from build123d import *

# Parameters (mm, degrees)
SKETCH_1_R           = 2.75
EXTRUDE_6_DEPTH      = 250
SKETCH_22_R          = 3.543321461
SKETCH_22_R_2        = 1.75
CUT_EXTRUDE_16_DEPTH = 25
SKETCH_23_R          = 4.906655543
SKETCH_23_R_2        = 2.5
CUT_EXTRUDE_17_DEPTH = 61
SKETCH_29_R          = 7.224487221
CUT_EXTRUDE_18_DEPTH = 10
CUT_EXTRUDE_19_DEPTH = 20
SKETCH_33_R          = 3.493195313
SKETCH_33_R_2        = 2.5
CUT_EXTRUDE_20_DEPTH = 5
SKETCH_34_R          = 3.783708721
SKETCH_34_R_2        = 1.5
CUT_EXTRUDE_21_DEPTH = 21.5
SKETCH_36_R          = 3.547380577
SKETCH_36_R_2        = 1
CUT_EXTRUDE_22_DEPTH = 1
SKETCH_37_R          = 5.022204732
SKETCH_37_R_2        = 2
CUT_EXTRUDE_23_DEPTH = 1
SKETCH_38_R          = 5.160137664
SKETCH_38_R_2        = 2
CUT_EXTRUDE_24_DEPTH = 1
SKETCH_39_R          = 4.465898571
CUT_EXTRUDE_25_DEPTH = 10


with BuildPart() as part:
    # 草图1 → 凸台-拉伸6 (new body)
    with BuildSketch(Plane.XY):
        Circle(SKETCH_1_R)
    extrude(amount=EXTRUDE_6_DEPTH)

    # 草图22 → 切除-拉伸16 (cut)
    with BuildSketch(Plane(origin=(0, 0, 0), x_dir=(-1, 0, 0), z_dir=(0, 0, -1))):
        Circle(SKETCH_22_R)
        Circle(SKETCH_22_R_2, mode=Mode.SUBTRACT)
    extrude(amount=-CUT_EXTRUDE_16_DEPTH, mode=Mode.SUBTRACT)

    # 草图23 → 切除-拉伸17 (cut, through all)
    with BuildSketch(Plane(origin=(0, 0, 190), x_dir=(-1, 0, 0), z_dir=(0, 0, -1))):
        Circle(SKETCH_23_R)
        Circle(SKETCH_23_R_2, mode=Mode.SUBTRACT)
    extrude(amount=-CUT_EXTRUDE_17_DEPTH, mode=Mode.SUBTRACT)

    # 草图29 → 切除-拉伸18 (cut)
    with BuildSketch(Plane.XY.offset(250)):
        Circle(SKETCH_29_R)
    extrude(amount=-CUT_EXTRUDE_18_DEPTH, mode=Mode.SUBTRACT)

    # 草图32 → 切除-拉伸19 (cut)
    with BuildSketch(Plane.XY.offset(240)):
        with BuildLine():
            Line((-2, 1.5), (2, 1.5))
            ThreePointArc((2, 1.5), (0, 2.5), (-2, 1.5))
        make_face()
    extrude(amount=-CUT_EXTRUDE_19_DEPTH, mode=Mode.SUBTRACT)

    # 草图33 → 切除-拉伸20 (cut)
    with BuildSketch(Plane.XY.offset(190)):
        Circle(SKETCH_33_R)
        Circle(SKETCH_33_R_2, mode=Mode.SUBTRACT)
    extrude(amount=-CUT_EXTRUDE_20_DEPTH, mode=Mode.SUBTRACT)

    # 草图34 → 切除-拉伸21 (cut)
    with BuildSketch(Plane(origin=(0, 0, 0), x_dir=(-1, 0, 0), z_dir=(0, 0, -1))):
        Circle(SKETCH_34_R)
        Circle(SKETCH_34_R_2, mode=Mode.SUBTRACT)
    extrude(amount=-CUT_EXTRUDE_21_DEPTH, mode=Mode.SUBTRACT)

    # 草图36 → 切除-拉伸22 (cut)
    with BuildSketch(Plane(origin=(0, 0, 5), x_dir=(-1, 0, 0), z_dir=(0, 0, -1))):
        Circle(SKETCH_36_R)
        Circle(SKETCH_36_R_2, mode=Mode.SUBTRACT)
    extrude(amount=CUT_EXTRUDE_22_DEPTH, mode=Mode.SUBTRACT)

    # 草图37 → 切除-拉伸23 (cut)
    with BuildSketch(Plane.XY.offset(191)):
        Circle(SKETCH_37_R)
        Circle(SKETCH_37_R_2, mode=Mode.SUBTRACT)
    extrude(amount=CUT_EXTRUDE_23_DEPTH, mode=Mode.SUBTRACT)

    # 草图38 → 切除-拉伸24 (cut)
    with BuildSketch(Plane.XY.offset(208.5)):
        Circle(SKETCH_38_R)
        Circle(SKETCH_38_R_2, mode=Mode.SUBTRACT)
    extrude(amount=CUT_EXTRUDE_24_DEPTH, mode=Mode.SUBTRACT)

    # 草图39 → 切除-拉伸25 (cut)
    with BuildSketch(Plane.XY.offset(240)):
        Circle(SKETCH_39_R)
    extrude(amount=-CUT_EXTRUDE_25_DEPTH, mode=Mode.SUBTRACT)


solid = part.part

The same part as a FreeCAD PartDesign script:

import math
import FreeCAD as App
import Part
import Sketcher

V = App.Vector

doc = App.newDocument("Part")
params = doc.addObject("Spreadsheet::Sheet", "Params")
for row, (alias, value) in enumerate([
    ("sketch1_diameter", "5.5 mm"),
    ("pad1_length", "250 mm"),
    ("sketch2_diameter", "3.5 mm"),
    ("pocket1_length", "25 mm"),
    ("sketch3_diameter", "5 mm"),
    ("pocket3_length", "10 mm"),
    ("sketch5_radius", "2.5 mm"),
    ("sketch5_width", "4 mm"),
    ("pocket4_length", "20 mm"),
    ("sketch6_diameter", "5 mm"),
    ("pocket5_length", "5 mm"),
    ("sketch7_diameter", "3 mm"),
    ("pocket6_length", "21.5 mm"),
    ("sketch8_diameter", "2 mm"),
    ("pocket7_length", "1 mm"),
    ("sketch9_diameter", "4 mm"),
    ("pocket8_length", "1 mm"),
    ("sketch10_diameter", "4 mm"),
    ("pocket9_length", "1 mm"),
    ("pocket10_length", "10 mm"),
], start=1):
    params.set(f"A{row}", alias)
    params.set(f"B{row}", "=" + value)
    params.setAlias(f"B{row}", alias)

body = doc.addObject("PartDesign::Body", "Body")

# Sketch on XY plane
sketch1 = body.newObject("Sketcher::SketchObject", "Sketch")
sketch1.AttachmentSupport = (doc.getObject("XY_Plane"), [""])
sketch1.MapMode = "FlatFace"
sketch1.addGeometry(Part.Circle(V(0, 0, 0), V(0, 0, 1), 2.8), False)
sketch1.addConstraint(Sketcher.Constraint("Coincident", 0, 3, -1, 1))
sketch1.addConstraint(Sketcher.Constraint("Diameter", 0, 5.5))
sketch1.setExpression("Constraints[1]", "Params.sketch1_diameter")
pad1 = body.newObject("PartDesign::Pad", "Pad")
pad1.Profile = sketch1
pad1.setExpression("Length", "Params.pad1_length")

# Sketch on XY plane
sketch2 = body.newObject("Sketcher::SketchObject", "Sketch001")
sketch2.AttachmentSupport = (doc.getObject("XY_Plane"), [""])
sketch2.MapMode = "FlatFace"
sketch2.addGeometry(Part.Circle(V(0, 0, 0), V(0, 0, 1), 3.5), False)
sketch2.addGeometry(Part.Circle(V(0, 0, 0), V(0, 0, 1), 1.8), False)
sketch2.addConstraint(Sketcher.Constraint("Coincident", 0, 3, -1, 1))
sketch2.addConstraint(Sketcher.Constraint("Coincident", 1, 3, -1, 1))
sketch2.addConstraint(Sketcher.Constraint("Diameter", 1, 3.5))
sketch2.addConstraint(Sketcher.Constraint("Diameter", 0, 7.086643))
sketch2.setExpression("Constraints[2]", "Params.sketch2_diameter")
pocket1 = body.newObject("PartDesign::Pocket", "Pocket")
pocket1.Profile = sketch2
pocket1.setExpression("Length", "Params.pocket1_length")
pocket1.Reversed = True

# Sketch on XY plane
sketch3 = body.newObject("Sketcher::SketchObject", "Sketch002")
sketch3.AttachmentSupport = (doc.getObject("XY_Plane"), [""])
sketch3.MapMode = "FlatFace"
sketch3.AttachmentOffset = App.Placement(V(0, 0, 190), App.Rotation())
sketch3.addGeometry(Part.Circle(V(0, 0, 0), V(0, 0, 1), 4.9), False)
sketch3.addGeometry(Part.Circle(V(0, 0, 0), V(0, 0, 1), 2.5), False)
sketch3.addConstraint(Sketcher.Constraint("Coincident", 0, 3, -1, 1))
sketch3.addConstraint(Sketcher.Constraint("Coincident", 1, 3, -1, 1))
sketch3.addConstraint(Sketcher.Constraint("Diameter", 1, 5.0))
sketch3.addConstraint(Sketcher.Constraint("Diameter", 0, 9.813311))
sketch3.setExpression("Constraints[2]", "Params.sketch3_diameter")
pocket2 = body.newObject("PartDesign::Pocket", "Pocket001")
pocket2.Profile = sketch3
pocket2.Type = "ThroughAll"
pocket2.Reversed = True

# Sketch on XY plane
sketch4 = body.newObject("Sketcher::SketchObject", "Sketch003")
sketch4.AttachmentSupport = (doc.getObject("XY_Plane"), [""])
sketch4.MapMode = "FlatFace"
sketch4.AttachmentOffset = App.Placement(V(0, 0, 250), App.Rotation())
sketch4.addGeometry(Part.Circle(V(0, 0, 0), V(0, 0, 1), 7), False)
sketch4.addConstraint(Sketcher.Constraint("Coincident", 0, 3, -1, 1))
sketch4.addConstraint(Sketcher.Constraint("Diameter", 0, 14.448974))
pocket3 = body.newObject("PartDesign::Pocket", "Pocket002")
pocket3.Profile = sketch4
pocket3.setExpression("Length", "Params.pocket3_length")

# Sketch on XY plane
sketch5 = body.newObject("Sketcher::SketchObject", "Sketch004")
sketch5.AttachmentSupport = (doc.getObject("XY_Plane"), [""])
sketch5.MapMode = "FlatFace"
sketch5.AttachmentOffset = App.Placement(V(0, 0, 240), App.Rotation())
sketch5.addGeometry(Part.LineSegment(V(-2, 1.5, 0), V(2, 1.5, 0)), False)
sketch5.addGeometry(Part.ArcOfCircle(Part.Circle(V(0, 0, 0), V(0, 0, 1), 2.5), math.radians(37), math.radians(143)), False)
sketch5.addConstraint(Sketcher.Constraint("Coincident", 0, 1, 1, 2))
sketch5.addConstraint(Sketcher.Constraint("Coincident", 1, 1, 0, 2))
sketch5.addConstraint(Sketcher.Constraint("Horizontal", 0))
sketch5.addConstraint(Sketcher.Constraint("Coincident", 1, 3, -1, 1))
sketch5.addConstraint(Sketcher.Constraint("Radius", 1, 2.5))
sketch5.addConstraint(Sketcher.Constraint("DistanceX", 0, 1, 0, 2, 4.0))
sketch5.setExpression("Constraints[4]", "Params.sketch5_radius")
sketch5.setExpression("Constraints[5]", "Params.sketch5_width")
pocket4 = body.newObject("PartDesign::Pocket", "Pocket003")
pocket4.Profile = sketch5
pocket4.setExpression("Length", "Params.pocket4_length")

# Sketch on XY plane
sketch6 = body.newObject("Sketcher::SketchObject", "Sketch005")
sketch6.AttachmentSupport = (doc.getObject("XY_Plane"), [""])
sketch6.MapMode = "FlatFace"
sketch6.AttachmentOffset = App.Placement(V(0, 0, 190), App.Rotation())
sketch6.addGeometry(Part.Circle(V(0, 0, 0), V(0, 0, 1), 3.5), False)
sketch6.addGeometry(Part.Circle(V(0, 0, 0), V(0, 0, 1), 2.5), False)
sketch6.addConstraint(Sketcher.Constraint("Coincident", 0, 3, -1, 1))
sketch6.addConstraint(Sketcher.Constraint("Coincident", 1, 3, -1, 1))
sketch6.addConstraint(Sketcher.Constraint("Diameter", 1, 5.0))
sketch6.addConstraint(Sketcher.Constraint("Diameter", 0, 6.986391))
sketch6.setExpression("Constraints[2]", "Params.sketch6_diameter")
pocket5 = body.newObject("PartDesign::Pocket", "Pocket004")
pocket5.Profile = sketch6
pocket5.setExpression("Length", "Params.pocket5_length")

# Sketch on XY plane
sketch7 = body.newObject("Sketcher::SketchObject", "Sketch006")
sketch7.AttachmentSupport = (doc.getObject("XY_Plane"), [""])
sketch7.MapMode = "FlatFace"
sketch7.addGeometry(Part.Circle(V(0, 0, 0), V(0, 0, 1), 3.8), False)
sketch7.addGeometry(Part.Circle(V(0, 0, 0), V(0, 0, 1), 1.5), False)
sketch7.addConstraint(Sketcher.Constraint("Coincident", 0, 3, -1, 1))
sketch7.addConstraint(Sketcher.Constraint("Coincident", 1, 3, -1, 1))
sketch7.addConstraint(Sketcher.Constraint("Diameter", 1, 3.0))
sketch7.addConstraint(Sketcher.Constraint("Diameter", 0, 7.567417))
sketch7.setExpression("Constraints[2]", "Params.sketch7_diameter")
pocket6 = body.newObject("PartDesign::Pocket", "Pocket005")
pocket6.Profile = sketch7
pocket6.setExpression("Length", "Params.pocket6_length")
pocket6.Reversed = True

# Sketch on XY plane
sketch8 = body.newObject("Sketcher::SketchObject", "Sketch007")
sketch8.AttachmentSupport = (doc.getObject("XY_Plane"), [""])
sketch8.MapMode = "FlatFace"
sketch8.AttachmentOffset = App.Placement(V(0, 0, 5), App.Rotation())
sketch8.addGeometry(Part.Circle(V(0, 0, 0), V(0, 0, 1), 3.5), False)
sketch8.addGeometry(Part.Circle(V(0, 0, 0), V(0, 0, 1), 1), False)
sketch8.addConstraint(Sketcher.Constraint("Coincident", 0, 3, -1, 1))
sketch8.addConstraint(Sketcher.Constraint("Coincident", 1, 3, -1, 1))
sketch8.addConstraint(Sketcher.Constraint("Diameter", 1, 2.0))
sketch8.addConstraint(Sketcher.Constraint("Diameter", 0, 7.094761))
sketch8.setExpression("Constraints[2]", "Params.sketch8_diameter")
pocket7 = body.newObject("PartDesign::Pocket", "Pocket006")
pocket7.Profile = sketch8
pocket7.setExpression("Length", "Params.pocket7_length")

# Sketch on XY plane
sketch9 = body.newObject("Sketcher::SketchObject", "Sketch008")
sketch9.AttachmentSupport = (doc.getObject("XY_Plane"), [""])
sketch9.MapMode = "FlatFace"
sketch9.AttachmentOffset = App.Placement(V(0, 0, 191), App.Rotation())
sketch9.addGeometry(Part.Circle(V(0, 0, 0), V(0, 0, 1), 5), False)
sketch9.addGeometry(Part.Circle(V(0, 0, 0), V(0, 0, 1), 2), False)
sketch9.addConstraint(Sketcher.Constraint("Coincident", 0, 3, -1, 1))
sketch9.addConstraint(Sketcher.Constraint("Coincident", 1, 3, -1, 1))
sketch9.addConstraint(Sketcher.Constraint("Diameter", 1, 4.0))
sketch9.addConstraint(Sketcher.Constraint("Diameter", 0, 10.044409))
sketch9.setExpression("Constraints[2]", "Params.sketch9_diameter")
pocket8 = body.newObject("PartDesign::Pocket", "Pocket007")
pocket8.Profile = sketch9
pocket8.setExpression("Length", "Params.pocket8_length")
pocket8.Reversed = True

# Sketch on XY plane
sketch10 = body.newObject("Sketcher::SketchObject", "Sketch009")
sketch10.AttachmentSupport = (doc.getObject("XY_Plane"), [""])
sketch10.MapMode = "FlatFace"
sketch10.AttachmentOffset = App.Placement(V(0, 0, 208.5), App.Rotation())
sketch10.addGeometry(Part.Circle(V(0, 0, 0), V(0, 0, 1), 5.2), False)
sketch10.addGeometry(Part.Circle(V(0, 0, 0), V(0, 0, 1), 2), False)
sketch10.addConstraint(Sketcher.Constraint("Coincident", 0, 3, -1, 1))
sketch10.addConstraint(Sketcher.Constraint("Coincident", 1, 3, -1, 1))
sketch10.addConstraint(Sketcher.Constraint("Diameter", 1, 4.0))
sketch10.addConstraint(Sketcher.Constraint("Diameter", 0, 10.320275))
sketch10.setExpression("Constraints[2]", "Params.sketch10_diameter")
pocket9 = body.newObject("PartDesign::Pocket", "Pocket008")
pocket9.Profile = sketch10
pocket9.setExpression("Length", "Params.pocket9_length")
pocket9.Reversed = True

# Sketch on XY plane
sketch11 = body.newObject("Sketcher::SketchObject", "Sketch010")
sketch11.AttachmentSupport = (doc.getObject("XY_Plane"), [""])
sketch11.MapMode = "FlatFace"
sketch11.AttachmentOffset = App.Placement(V(0, 0, 240), App.Rotation())
sketch11.addGeometry(Part.Circle(V(0, 0, 0), V(0, 0, 1), 4.5), False)
sketch11.addConstraint(Sketcher.Constraint("Coincident", 0, 3, -1, 1))
sketch11.addConstraint(Sketcher.Constraint("Diameter", 0, 8.931797))
pocket10 = body.newObject("PartDesign::Pocket", "Pocket009")
pocket10.Profile = sketch11
pocket10.setExpression("Length", "Params.pocket10_length")

doc.recompute()
